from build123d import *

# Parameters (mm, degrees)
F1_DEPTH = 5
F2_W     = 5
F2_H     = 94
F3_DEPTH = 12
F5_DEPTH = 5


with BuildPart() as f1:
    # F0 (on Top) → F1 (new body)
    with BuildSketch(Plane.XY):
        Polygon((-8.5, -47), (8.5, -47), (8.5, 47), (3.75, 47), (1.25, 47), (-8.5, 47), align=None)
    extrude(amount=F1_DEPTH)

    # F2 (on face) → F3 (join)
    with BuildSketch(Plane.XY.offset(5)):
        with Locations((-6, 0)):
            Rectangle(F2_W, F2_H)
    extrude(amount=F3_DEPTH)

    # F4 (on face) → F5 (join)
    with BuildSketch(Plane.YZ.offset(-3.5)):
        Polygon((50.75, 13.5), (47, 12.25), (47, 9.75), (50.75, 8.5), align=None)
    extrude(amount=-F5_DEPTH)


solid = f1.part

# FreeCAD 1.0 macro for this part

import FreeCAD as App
import Part
import Sketcher
from FreeCAD import Vector

doc = App.newDocument("Part")
body = doc.addObject("PartDesign::Body", "Body")

# Sketch on XY plane
sketch1 = body.newObject("Sketcher::SketchObject", "Sketch")
sketch1.AttachmentSupport = (doc.getObject("XY_Plane"), [""])
sketch1.MapMode = "FlatFace"
sketch1.addGeometry([
    Part.LineSegment(Vector(-8.5, -47, 0), Vector(8.5, -47, 0)),
    Part.LineSegment(Vector(8.5, -47, 0), Vector(8.5, 47, 0)),
    Part.LineSegment(Vector(8.5, 47, 0), Vector(-8.5, 47, 0)),
    Part.LineSegment(Vector(-8.5, 47, 0), Vector(-8.5, -47, 0)),
], False)
sketch1.addConstraint([
    Sketcher.Constraint("Coincident", 0, 2, 1, 1),
    Sketcher.Constraint("Coincident", 1, 2, 2, 1),
    Sketcher.Constraint("Coincident", 2, 2, 3, 1),
    Sketcher.Constraint("Coincident", 3, 2, 0, 1),
    Sketcher.Constraint("Horizontal", 0),
    Sketcher.Constraint("Vertical", 1),
    Sketcher.Constraint("Horizontal", 2),
    Sketcher.Constraint("Vertical", 3),
    Sketcher.Constraint("Symmetric", 0, 2, 2, 2, -1, 1),
    Sketcher.Constraint("DistanceX", 0, 1, 0, 2, 17.0),
    Sketcher.Constraint("DistanceY", 1, 1, 1, 2, 94.0),
])
pad1 = body.newObject("PartDesign::Pad", "Pad")
pad1.Profile = sketch1
pad1.Length = 5

# Sketch on XY plane
sketch2 = body.newObject("Sketcher::SketchObject", "Sketch001")
sketch2.AttachmentSupport = (doc.getObject("XY_Plane"), [""])
sketch2.MapMode = "FlatFace"
sketch2.AttachmentOffset = App.Placement(Vector(0, 0, 5), App.Rotation())
sketch2.addGeometry([
    Part.LineSegment(Vector(-8.5, 47, 0), Vector(-8.5, -47, 0)),
    Part.LineSegment(Vector(-8.5, -47, 0), Vector(-3.5, -47, 0)),
    Part.LineSegment(Vector(-3.5, -47, 0), Vector(-3.5, 47, 0)),
    Part.LineSegment(Vector(-3.5, 47, 0), Vector(-8.5, 47, 0)),
], False)
sketch2.addConstraint([
    Sketcher.Constraint("Coincident", 0, 2, 1, 1),
    Sketcher.Constraint("Coincident", 1, 2, 2, 1),
    Sketcher.Constraint("Coincident", 2, 2, 3, 1),
    Sketcher.Constraint("Coincident", 3, 2, 0, 1),
    Sketcher.Constraint("Vertical", 0),
    Sketcher.Constraint("Horizontal", 1),
    Sketcher.Constraint("Vertical", 2),
    Sketcher.Constraint("Horizontal", 3),
    Sketcher.Constraint("DistanceX", 1, 1, 1, 2, 5.0),
    Sketcher.Constraint("DistanceY", 0, 2, 0, 1, 94.0),
    Sketcher.Constraint("DistanceY", 0, 2, -1, 1, 47.0),
    Sketcher.Constraint("DistanceX", 0, 2, -1, 1, 8.5),
])
pad2 = body.newObject("PartDesign::Pad", "Pad001")
pad2.Profile = sketch2
pad2.Length = 12

# Sketch on YZ plane
sketch3 = body.newObject("Sketcher::SketchObject", "Sketch002")
sketch3.AttachmentSupport = (doc.getObject("YZ_Plane"), [""])
sketch3.MapMode = "FlatFace"
sketch3.AttachmentOffset = App.Placement(Vector(0, 0, -3.5), App.Rotation())
sketch3.addGeometry([
    Part.LineSegment(Vector(50.75, 13.5, 0), Vector(47, 12.25, 0)),
    Part.LineSegment(Vector(47, 12.25, 0), Vector(47, 9.75, 0)),
    Part.LineSegment(Vector(47, 9.75, 0), Vector(50.75, 8.5, 0)),
    Part.LineSegment(Vector(50.75, 8.5, 0), Vector(50.75, 13.5, 0)),
], False)
sketch3.addConstraint([
    Sketcher.Constraint("Coincident", 0, 2, 1, 1),
    Sketcher.Constraint("Coincident", 1, 2, 2, 1),
    Sketcher.Constraint("Coincident", 2, 2, 3, 1),
    Sketcher.Constraint("Coincident", 3, 2, 0, 1),
    Sketcher.Constraint("Vertical", 1),
    Sketcher.Constraint("Vertical", 3),
    Sketcher.Constraint("Equal", 0, 2),
    Sketcher.Constraint("DistanceY", 3, 1, 3, 2, 5.0),
    Sketcher.Constraint("DistanceY", 1, 2, 1, 1, 2.5),
    Sketcher.Constraint("DistanceX", -1, 1, 0, 2, 47.0),
    Sketcher.Constraint("DistanceY", -1, 1, 2, 2, 8.5),
    Sketcher.Constraint("DistanceX", -1, 1, 2, 2, 50.75),
])
pad3 = body.newObject("PartDesign::Pad", "Pad002")
pad3.Profile = sketch3
pad3.Length = 5
pad3.Reversed = True

doc.recompute()
